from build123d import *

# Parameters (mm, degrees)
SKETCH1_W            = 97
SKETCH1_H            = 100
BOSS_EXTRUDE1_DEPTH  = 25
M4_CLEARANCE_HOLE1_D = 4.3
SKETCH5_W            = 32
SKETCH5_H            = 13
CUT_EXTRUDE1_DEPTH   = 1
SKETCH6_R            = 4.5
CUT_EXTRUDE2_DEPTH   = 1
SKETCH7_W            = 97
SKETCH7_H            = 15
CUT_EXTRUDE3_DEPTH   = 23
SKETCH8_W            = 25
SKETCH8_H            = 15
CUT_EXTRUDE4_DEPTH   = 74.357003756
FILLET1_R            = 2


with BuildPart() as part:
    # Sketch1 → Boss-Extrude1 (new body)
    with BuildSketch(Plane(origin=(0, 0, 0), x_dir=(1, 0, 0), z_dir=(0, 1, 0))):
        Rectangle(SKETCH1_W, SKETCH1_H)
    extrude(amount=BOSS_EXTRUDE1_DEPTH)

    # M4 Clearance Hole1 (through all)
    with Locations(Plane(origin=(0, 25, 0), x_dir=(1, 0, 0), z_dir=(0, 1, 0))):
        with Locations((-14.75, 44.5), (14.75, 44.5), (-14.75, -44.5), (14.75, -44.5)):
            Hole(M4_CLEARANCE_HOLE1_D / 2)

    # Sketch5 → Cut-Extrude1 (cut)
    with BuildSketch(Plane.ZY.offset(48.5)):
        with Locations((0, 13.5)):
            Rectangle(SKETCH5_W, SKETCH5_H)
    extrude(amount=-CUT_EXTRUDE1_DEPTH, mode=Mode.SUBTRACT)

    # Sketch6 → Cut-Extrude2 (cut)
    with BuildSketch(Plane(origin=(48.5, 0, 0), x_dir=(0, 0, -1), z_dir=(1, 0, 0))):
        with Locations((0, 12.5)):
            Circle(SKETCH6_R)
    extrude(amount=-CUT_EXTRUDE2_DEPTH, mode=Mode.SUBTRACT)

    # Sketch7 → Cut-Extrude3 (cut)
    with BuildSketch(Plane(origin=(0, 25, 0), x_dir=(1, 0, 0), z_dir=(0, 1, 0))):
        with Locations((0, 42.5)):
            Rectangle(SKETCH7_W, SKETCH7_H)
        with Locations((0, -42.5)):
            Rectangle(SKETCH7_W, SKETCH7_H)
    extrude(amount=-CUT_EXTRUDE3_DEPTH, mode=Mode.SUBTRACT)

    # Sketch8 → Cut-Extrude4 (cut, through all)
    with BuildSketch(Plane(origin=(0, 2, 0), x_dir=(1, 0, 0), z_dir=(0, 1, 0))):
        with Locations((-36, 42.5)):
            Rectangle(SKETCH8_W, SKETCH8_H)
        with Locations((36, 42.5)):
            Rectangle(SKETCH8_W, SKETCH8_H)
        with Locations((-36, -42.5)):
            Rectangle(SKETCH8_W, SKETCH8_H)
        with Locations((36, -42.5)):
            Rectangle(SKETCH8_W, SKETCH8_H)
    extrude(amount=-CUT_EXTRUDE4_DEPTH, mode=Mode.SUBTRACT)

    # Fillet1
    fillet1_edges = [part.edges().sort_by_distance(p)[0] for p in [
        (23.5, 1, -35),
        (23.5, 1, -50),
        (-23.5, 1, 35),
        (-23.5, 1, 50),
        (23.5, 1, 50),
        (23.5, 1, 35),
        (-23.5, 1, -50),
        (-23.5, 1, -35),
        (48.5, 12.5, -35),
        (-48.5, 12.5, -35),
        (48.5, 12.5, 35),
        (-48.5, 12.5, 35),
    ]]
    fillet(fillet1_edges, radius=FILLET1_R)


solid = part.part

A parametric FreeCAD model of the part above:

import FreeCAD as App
import Part
import Sketcher
from FreeCAD import Vector


def edges_at(feature, points):
    """Names of the edges that pass closest to the given points."""
    edges = feature.Shape.Edges
    near = lambda p: min(range(len(edges)), key=lambda i: edges[i].distToShape(Part.Vertex(*p))[0])
    return sorted({f"Edge{near(p) + 1}" for p in points})

doc = App.newDocument("Part")
params = doc.addObject("Spreadsheet::Sheet", "Params")
for row, (alias, value) in enumerate([
    ("sketch1_width", "97 mm"),
    ("sketch1_height", "100 mm"),
    ("pad1_length", "25 mm"),
    ("sketch2_diameter", "4.3 mm"),
    ("hole_diameter", "4.3 mm"),
    ("sketch3_width", "13 mm"),
    ("sketch3_height", "32 mm"),
    ("pocket1_length", "1 mm"),
    ("sketch4_diameter", "9 mm"),
    ("pocket2_length", "1 mm"),
    ("sketch5_width", "97 mm"),
    ("sketch5_height", "15 mm"),
    ("pocket3_length", "23 mm"),
    ("sketch6_width", "25 mm"),
    ("sketch6_height", "15 mm"),
    ("fillet_radius", "2 mm"),
], start=1):
    params.set(f"A{row}", alias)
    params.set(f"B{row}", "=" + value)
    params.setAlias(f"B{row}", alias)

body = doc.addObject("PartDesign::Body", "Body")

# Sketch on XZ plane
sketch1 = doc.addObject("Sketcher::SketchObject", "Sketch")
body.addObject(sketch1)
sketch1.AttachmentSupport = (doc.XZ_Plane, [""])
sketch1.MapMode = "FlatFace"
sketch1.addGeometry([
    Part.LineSegment(Vector(-48, -50, 0), Vector(-48, 50, 0)),
    Part.LineSegment(Vector(-48, 50, 0), Vector(48, 50, 0)),
    Part.LineSegment(Vector(48, 50, 0), Vector(48, -50, 0)),
    Part.LineSegment(Vector(48, -50, 0), Vector(-48, -50, 0)),
], False)
sketch1.addConstraint([
    Sketcher.Constraint("Coincident", 0, 2, 1, 1),
    Sketcher.Constraint("Coincident", 1, 2, 2, 1),
    Sketcher.Constraint("Coincident", 2, 2, 3, 1),
    Sketcher.Constraint("Coincident", 3, 2, 0, 1),
    Sketcher.Constraint("Vertical", 0),
    Sketcher.Constraint("Horizontal", 1),
    Sketcher.Constraint("Vertical", 2),
    Sketcher.Constraint("Horizontal", 3),
    Sketcher.Constraint("Symmetric", 0, 2, 2, 2, -1, 1),
    Sketcher.Constraint("DistanceX", 1, 1, 1, 2, 97.0),
    Sketcher.Constraint("DistanceY", 0, 1, 0, 2, 100.0),
])
sketch1.setExpression("Constraints[9]", "Params.sketch1_width")
sketch1.setExpression("Constraints[10]", "Params.sketch1_height")
pad1 = doc.addObject("PartDesign::Pad", "Pad")
body.addObject(pad1)
pad1.Profile = sketch1
pad1.setExpression("Length", "Params.pad1_length")
pad1.Reversed = True

# Sketch on XZ plane
sketch2 = doc.addObject("Sketcher::SketchObject", "Sketch001")
body.addObject(sketch2)
sketch2.AttachmentSupport = (doc.XZ_Plane, [""])
sketch2.MapMode = "FlatFace"
sketch2.AttachmentOffset = App.Placement(Vector(0, 0, -25), App.Rotation())
sketch2.addGeometry([
    Part.Circle(Vector(-14.8, -44.5, 0), Vector(0, 0, 1), 2.1),
    Part.Circle(Vector(14.8, -44.5, 0), Vector(0, 0, 1), 2.1),
    Part.Circle(Vector(-14.8, 44.5, 0), Vector(0, 0, 1), 2.1),
    Part.Circle(Vector(14.8, 44.5, 0), Vector(0, 0, 1), 2.1),
], False)
sketch2.addConstraint([
    Sketcher.Constraint("Equal", 0, 1),
    Sketcher.Constraint("Equal", 1, 2),
    Sketcher.Constraint("Equal", 2, 3),
    Sketcher.Constraint("Symmetric", 1, 3, 2, 3, -1, 1),
    Sketcher.Constraint("Symmetric", 0, 3, 3, 3, -1, 1),
    Sketcher.Constraint("Symmetric", 0, 3, 1, 3, -2),
    Sketcher.Constraint("Diameter", 0, 4.3),
    Sketcher.Constraint("DistanceY", 0, 3, 2, 3, 89.0),
    Sketcher.Constraint("DistanceX", 0, 3, 1, 3, 29.5),
])
sketch2.setExpression("Constraints[6]", "Params.sketch2_diameter")
doc.recompute()
hole = doc.addObject("PartDesign::Hole", "Hole")
body.addObject(hole)
hole.Profile = sketch2
hole.ThreadType = "None"
hole.setExpression("Diameter", "Params.hole_diameter")
hole.DepthType = "ThroughAll"
hole.Reversed = True

# Sketch on YZ plane
sketch3 = doc.addObject("Sketcher::SketchObject", "Sketch002")
body.addObject(sketch3)
sketch3.AttachmentSupport = (doc.YZ_Plane, [""])
sketch3.MapMode = "FlatFace"
sketch3.AttachmentOffset = App.Placement(Vector(0, 0, -48.5), App.Rotation())
sketch3.addGeometry([
    Part.LineSegment(Vector(20, -16, 0), Vector(7, -16, 0)),
    Part.LineSegment(Vector(7, -16, 0), Vector(7, 16, 0)),
    Part.LineSegment(Vector(7, 16, 0), Vector(20, 16, 0)),
    Part.LineSegment(Vector(20, 16, 0), Vector(20, -16, 0)),
], False)
sketch3.addConstraint([
    Sketcher.Constraint("Coincident", 0, 2, 1, 1),
    Sketcher.Constraint("Coincident", 1, 2, 2, 1),
    Sketcher.Constraint("Coincident", 2, 2, 3, 1),
    Sketcher.Constraint("Coincident", 3, 2, 0, 1),
    Sketcher.Constraint("Horizontal", 0),
    Sketcher.Constraint("Vertical", 1),
    Sketcher.Constraint("Horizontal", 2),
    Sketcher.Constraint("Vertical", 3),
    Sketcher.Constraint("DistanceX", 0, 2, 0, 1, 13.0),
    Sketcher.Constraint("DistanceY", 1, 1, 1, 2, 32.0),
    Sketcher.Constraint("DistanceX", -1, 1, 0, 2, 7.0),
    Sketcher.Constraint("DistanceY", 0, 2, -1, 1, 16.0),
])
sketch3.setExpression("Constraints[8]", "Params.sketch3_width")
sketch3.setExpression("Constraints[9]", "Params.sketch3_height")
pocket1 = doc.addObject("PartDesign::Pocket", "Pocket")
body.addObject(pocket1)
pocket1.Profile = sketch3
pocket1.setExpression("Length", "Params.pocket1_length")
pocket1.Reversed = True

# Sketch on YZ plane
sketch4 = doc.addObject("Sketcher::SketchObject", "Sketch003")
body.addObject(sketch4)
sketch4.AttachmentSupport = (doc.YZ_Plane, [""])
sketch4.MapMode = "FlatFace"
sketch4.AttachmentOffset = App.Placement(Vector(0, 0, 48.5), App.Rotation())
sketch4.addGeometry(Part.Circle(Vector(12.5, 0, 0), Vector(0, 0, 1), 4.5), False)
sketch4.addConstraint([
    Sketcher.Constraint("PointOnObject", 0, 3, -1),
    Sketcher.Constraint("Diameter", 0, 9.0),
    Sketcher.Constraint("DistanceX", -1, 1, 0, 3, 12.5),
])
sketch4.setExpression("Constraints[1]", "Params.sketch4_diameter")
pocket2 = doc.addObject("PartDesign::Pocket", "Pocket001")
body.addObject(pocket2)
pocket2.Profile = sketch4
pocket2.setExpression("Length", "Params.pocket2_length")

# Sketch on XZ plane
sketch5 = doc.addObject("Sketcher::SketchObject", "Sketch004")
body.addObject(sketch5)
sketch5.AttachmentSupport = (doc.XZ_Plane, [""])
sketch5.MapMode = "FlatFace"
sketch5.AttachmentOffset = App.Placement(Vector(0, 0, -25), App.Rotation())
sketch5.addGeometry([
    Part.LineSegment(Vector(-48, -50, 0), Vector(-48, -35, 0)),  # 0
    Part.LineSegment(Vector(-48, -35, 0), Vector(48, -35, 0)),  # 1
    Part.LineSegment(Vector(48, -35, 0), Vector(48, -50, 0)),  # 2
    Part.LineSegment(Vector(48, -50, 0), Vector(-48, -50, 0)),  # 3
    Part.LineSegment(Vector(-48, 35, 0), Vector(-48, 50, 0)),  # 4
    Part.LineSegment(Vector(-48, 50, 0), Vector(48, 50, 0)),  # 5
    Part.LineSegment(Vector(48, 50, 0), Vector(48, 35, 0)),  # 6
    Part.LineSegment(Vector(48, 35, 0), Vector(-48, 35, 0)),  # 7
], False)
sketch5.addConstraint([
    Sketcher.Constraint("Coincident", 0, 2, 1, 1),
    Sketcher.Constraint("Coincident", 1, 2, 2, 1),
    Sketcher.Constraint("Coincident", 2, 2, 3, 1),
    Sketcher.Constraint("Coincident", 3, 2, 0, 1),
    Sketcher.Constraint("Coincident", 4, 2, 5, 1),
    Sketcher.Constraint("Coincident", 5, 2, 6, 1),
    Sketcher.Constraint("Coincident", 6, 2, 7, 1),
    Sketcher.Constraint("Coincident", 7, 2, 4, 1),
    Sketcher.Constraint("Vertical", 0),
    Sketcher.Constraint("Horizontal", 1),
    Sketcher.Constraint("Vertical", 2),
    Sketcher.Constraint("Horizontal", 3),
    Sketcher.Constraint("Vertical", 4),
    Sketcher.Constraint("Horizontal", 5),
    Sketcher.Constraint("Vertical", 6),
    Sketcher.Constraint("Horizontal", 7),
    Sketcher.Constraint("Symmetric", 2, 2, 4, 2, -1, 1),
    Sketcher.Constraint("Symmetric", 0, 2, 6, 2, -1, 1),
    Sketcher.Constraint("Vertical", 3, 2, 4, 2),
    Sketcher.Constraint("DistanceX", 1, 1, 1, 2, 97.0),
    Sketcher.Constraint("DistanceY", 0, 1, 0, 2, 15.0),
    Sketcher.Constraint("DistanceY", 0, 2, -1, 1, 35.0),
])
sketch5.setExpression("Constraints[19]", "Params.sketch5_width")
sketch5.setExpression("Constraints[20]", "Params.sketch5_height")
pocket3 = doc.addObject("PartDesign::Pocket", "Pocket002")
body.addObject(pocket3)
pocket3.Profile = sketch5
pocket3.setExpression("Length", "Params.pocket3_length")
pocket3.Reversed = True

# Sketch on XZ plane
sketch6 = doc.addObject("Sketcher::SketchObject", "Sketch005")
body.addObject(sketch6)
sketch6.AttachmentSupport = (doc.XZ_Plane, [""])
sketch6.MapMode = "FlatFace"
sketch6.AttachmentOffset = App.Placement(Vector(0, 0, -2), App.Rotation())
sketch6.addGeometry([
    Part.LineSegment(Vector(-48, -50, 0), Vector(-48, -35, 0)),  # 0
    Part.LineSegment(Vector(-48, -35, 0), Vector(-24, -35, 0)),  # 1
    Part.LineSegment(Vector(-24, -35, 0), Vector(-24, -50, 0)),  # 2
    Part.LineSegment(Vector(-24, -50, 0), Vector(-48, -50, 0)),  # 3
    Part.LineSegment(Vector(24, -50, 0), Vector(24, -35, 0)),  # 4
    Part.LineSegment(Vector(24, -35, 0), Vector(48, -35, 0)),  # 5
    Part.LineSegment(Vector(48, -35, 0), Vector(48, -50, 0)),  # 6
    Part.LineSegment(Vector(48, -50, 0), Vector(24, -50, 0)),  # 7
    Part.LineSegment(Vector(-48, 35, 0), Vector(-48, 50, 0)),  # 8
    Part.LineSegment(Vector(-48, 50, 0), Vector(-24, 50, 0)),  # 9
    Part.LineSegment(Vector(-24, 50, 0), Vector(-24, 35, 0)),  # 10
    Part.LineSegment(Vector(-24, 35, 0), Vector(-48, 35, 0)),  # 11
    Part.LineSegment(Vector(24, 35, 0), Vector(24, 50, 0)),  # 12
    Part.LineSegment(Vector(24, 50, 0), Vector(48, 50, 0)),  # 13
    Part.LineSegment(Vector(48, 50, 0), Vector(48, 35, 0)),  # 14
    Part.LineSegment(Vector(48, 35, 0), Vector(24, 35, 0)),  # 15
], False)
sketch6.addConstraint([
    Sketcher.Constraint("Coincident", 0, 2, 1, 1),
    Sketcher.Constraint("Coincident", 1, 2, 2, 1),
    Sketcher.Constraint("Coincident", 2, 2, 3, 1),
    Sketcher.Constraint("Coincident", 3, 2, 0, 1),
    Sketcher.Constraint("Coincident", 4, 2, 5, 1),
    Sketcher.Constraint("Coincident", 5, 2, 6, 1),
    Sketcher.Constraint("Coincident", 6, 2, 7, 1),
    Sketcher.Constraint("Coincident", 7, 2, 4, 1),
    Sketcher.Constraint("Coincident", 8, 2, 9, 1),
    Sketcher.Constraint("Coincident", 9, 2, 10, 1),
    Sketcher.Constraint("Coincident", 10, 2, 11, 1),
    Sketcher.Constraint("Coincident", 11, 2, 8, 1),
    Sketcher.Constraint("Coincident", 12, 2, 13, 1),
    Sketcher.Constraint("Coincident", 13, 2, 14, 1),
    Sketcher.Constraint("Coincident", 14, 2, 15, 1),
    Sketcher.Constraint("Coincident", 15, 2, 12, 1),
    Sketcher.Constraint("Vertical", 0),
    Sketcher.Constraint("Horizontal", 1),
    Sketcher.Constraint("Vertical", 2),
    Sketcher.Constraint("Horizontal", 3),
    Sketcher.Constraint("Vertical", 4),
    Sketcher.Constraint("Horizontal", 5),
    Sketcher.Constraint("Vertical", 6),
    Sketcher.Constraint("Horizontal", 7),
    Sketcher.Constraint("Vertical", 8),
    Sketcher.Constraint("Horizontal", 9),
    Sketcher.Constraint("Vertical", 10),
    Sketcher.Constraint("Horizontal", 11),
    Sketcher.Constraint("Vertical", 12),
    Sketcher.Constraint("Horizontal", 13),
    Sketcher.Constraint("Vertical", 14),
    Sketcher.Constraint("Horizontal", 15),
    Sketcher.Constraint("Symmetric", 6, 2, 8, 2, -1, 1),
    Sketcher.Constraint("Symmetric", 4, 2, 10, 2, -1, 1),
    Sketcher.Constraint("Symmetric", 2, 2, 12, 2, -1, 1),
    Sketcher.Constraint("Symmetric", 0, 2, 14, 2, -1, 1),
    Sketcher.Constraint("Symmetric", 1, 2, 4, 2, -2),
    Sketcher.Constraint("Symmetric", 3, 2, 6, 2, -2),
    Sketcher.Constraint("DistanceX", 1, 1, 1, 2, 25.0),
    Sketcher.Constraint("DistanceY", 0, 1, 0, 2, 15.0),
    Sketcher.Constraint("DistanceY", 0, 2, -1, 1, 35.0),
    Sketcher.Constraint("DistanceX", 1, 2, 4, 2, 47.0),
])
sketch6.setExpression("Constraints[38]", "Params.sketch6_width")
sketch6.setExpression("Constraints[39]", "Params.sketch6_height")
pocket4 = doc.addObject("PartDesign::Pocket", "Pocket003")
body.addObject(pocket4)
pocket4.Profile = sketch6
pocket4.Type = "ThroughAll"
pocket4.Reversed = True
doc.recompute()

fillet = doc.addObject("PartDesign::Fillet", "Fillet")
body.addObject(fillet)
fillet.Base = (pocket4, edges_at(pocket4, [
    (23.5, 1, -35),
    (23.5, 1, -50),
    (-23.5, 1, 35),
    (-23.5, 1, 50),
    (23.5, 1, 50),
    (23.5, 1, 35),
    (-23.5, 1, -50),
    (-23.5, 1, -35),
    (48.5, 12.5, -35),
    (-48.5, 12.5, -35),
    (48.5, 12.5, 35),
    (-48.5, 12.5, 35),
]))
fillet.setExpression("Radius", "Params.fillet_radius")

doc.recompute()
